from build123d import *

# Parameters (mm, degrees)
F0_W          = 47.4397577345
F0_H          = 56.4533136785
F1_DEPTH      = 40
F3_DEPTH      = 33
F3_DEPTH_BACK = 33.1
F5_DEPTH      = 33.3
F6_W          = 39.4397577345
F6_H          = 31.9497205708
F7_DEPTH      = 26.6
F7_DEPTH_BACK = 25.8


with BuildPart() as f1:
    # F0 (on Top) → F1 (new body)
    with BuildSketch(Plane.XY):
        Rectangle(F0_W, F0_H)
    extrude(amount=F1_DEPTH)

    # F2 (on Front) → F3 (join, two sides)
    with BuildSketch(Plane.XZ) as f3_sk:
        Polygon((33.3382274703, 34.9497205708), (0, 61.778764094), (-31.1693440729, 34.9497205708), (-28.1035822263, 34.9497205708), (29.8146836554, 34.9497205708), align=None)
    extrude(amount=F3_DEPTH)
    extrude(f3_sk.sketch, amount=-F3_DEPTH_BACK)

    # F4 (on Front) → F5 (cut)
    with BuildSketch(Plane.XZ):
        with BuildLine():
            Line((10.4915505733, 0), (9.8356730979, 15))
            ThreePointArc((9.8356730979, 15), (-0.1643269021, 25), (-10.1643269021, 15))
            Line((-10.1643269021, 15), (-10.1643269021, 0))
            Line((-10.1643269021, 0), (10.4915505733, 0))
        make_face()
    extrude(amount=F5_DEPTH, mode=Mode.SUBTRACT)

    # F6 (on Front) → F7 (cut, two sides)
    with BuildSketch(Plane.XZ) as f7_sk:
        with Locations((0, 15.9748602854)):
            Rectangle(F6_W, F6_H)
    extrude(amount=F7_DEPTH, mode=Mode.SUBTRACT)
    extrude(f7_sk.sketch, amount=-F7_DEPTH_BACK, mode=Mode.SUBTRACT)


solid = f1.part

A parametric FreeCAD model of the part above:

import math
import FreeCAD as App
import Part
import Sketcher

V = App.Vector


def add_polygon(sketch, points):
    """Adds a closed chain of lines whose ends are joined by coincident constraints."""
    first, n = sketch.GeometryCount, len(points)
    for a, b in zip(points, points[1:] + points[:1]):
        sketch.addGeometry(Part.LineSegment(App.Vector(*a, 0), App.Vector(*b, 0)), False)
    for i in range(n):
        sketch.addConstraint(Sketcher.Constraint("Coincident", first + i, 2, first + (i + 1) % n, 1))

doc = App.newDocument("Part")
body = doc.addObject("PartDesign::Body", "Body")

# Sketch on XY plane
sketch1 = doc.addObject("Sketcher::SketchObject", "Sketch")
body.addObject(sketch1)
sketch1.AttachmentSupport = (doc.XY_Plane, [""])
sketch1.MapMode = "FlatFace"
add_polygon(sketch1, [(-24, 28), (-24, -28), (24, -28), (24, 28)])  # lines 0-3
sketch1.addConstraint(Sketcher.Constraint("Vertical", 0))
sketch1.addConstraint(Sketcher.Constraint("Horizontal", 1))
sketch1.addConstraint(Sketcher.Constraint("Vertical", 2))
sketch1.addConstraint(Sketcher.Constraint("Horizontal", 3))
sketch1.addConstraint(Sketcher.Constraint("Symmetric", 0, 2, 2, 2, -1, 1))
sketch1.addConstraint(Sketcher.Constraint("DistanceX", 1, 1, 1, 2, 47.439758))
sketch1.addConstraint(Sketcher.Constraint("DistanceY", 0, 2, 0, 1, 56.453314))
pad1 = doc.addObject("PartDesign::Pad", "Pad")
body.addObject(pad1)
pad1.Profile = sketch1
pad1.Length = 40

# Sketch on XZ plane
sketch2 = doc.addObject("Sketcher::SketchObject", "Sketch001")
body.addObject(sketch2)
sketch2.AttachmentSupport = (doc.XZ_Plane, [""])
sketch2.MapMode = "FlatFace"
add_polygon(sketch2, [(33, 35), (0, 62), (-31, 35)])  # lines 0-2
sketch2.addConstraint(Sketcher.Constraint("Horizontal", 2))
sketch2.addConstraint(Sketcher.Constraint("PointOnObject", 0, 2, -2))
sketch2.addConstraint(Sketcher.Constraint("DistanceX", 2, 1, 2, 2, 64.507572))
sketch2.addConstraint(Sketcher.Constraint("Distance", 0, 42.792932))
sketch2.addConstraint(Sketcher.Constraint("Distance", 1, 41.125729))
sketch2.addConstraint(Sketcher.Constraint("DistanceY", -1, 1, 1, 2, 34.949721))
pad2 = doc.addObject("PartDesign::Pad", "Pad001")
body.addObject(pad2)
pad2.Profile = sketch2
pad2.Type = "TwoLengths"
pad2.Length = 33
pad2.Length2 = 33.1

# Sketch on XZ plane
sketch3 = doc.addObject("Sketcher::SketchObject", "Sketch002")
body.addObject(sketch3)
sketch3.AttachmentSupport = (doc.XZ_Plane, [""])
sketch3.MapMode = "FlatFace"
sketch3.addGeometry(Part.LineSegment(V(10, 0, 0), V(10, 15, 0)), False)
sketch3.addGeometry(Part.ArcOfCircle(Part.Circle(V(0, 15, 0), V(0, 0, 1), 10), math.radians(0), math.radians(180)), False)
sketch3.addGeometry(Part.LineSegment(V(-10, 15, 0), V(-10, 0, 0)), False)
sketch3.addGeometry(Part.LineSegment(V(-10, 0, 0), V(10, 0, 0)), False)
sketch3.addConstraint(Sketcher.Constraint("Coincident", 0, 2, 1, 1))
sketch3.addConstraint(Sketcher.Constraint("Tangent", 1, 2, 2, 1))
sketch3.addConstraint(Sketcher.Constraint("Coincident", 2, 2, 3, 1))
sketch3.addConstraint(Sketcher.Constraint("Coincident", 3, 2, 0, 1))
sketch3.addConstraint(Sketcher.Constraint("Vertical", 2))
sketch3.addConstraint(Sketcher.Constraint("Horizontal", 3))
sketch3.addConstraint(Sketcher.Constraint("PointOnObject", 2, 2, -1))
sketch3.addConstraint(Sketcher.Constraint("Horizontal", 1, 3, 0, 2))
sketch3.addConstraint(Sketcher.Constraint("Radius", 1, 10.0))
sketch3.addConstraint(Sketcher.Constraint("DistanceY", 2, 2, 2, 1, 15.0))
sketch3.addConstraint(Sketcher.Constraint("DistanceX", 3, 1, 3, 2, 20.655877))
sketch3.addConstraint(Sketcher.Constraint("DistanceX", -1, 1, 3, 2, 10.491551))
pocket1 = doc.addObject("PartDesign::Pocket", "Pocket")
body.addObject(pocket1)
pocket1.Profile = sketch3
pocket1.Length = 33.3
pocket1.Reversed = True

# Sketch on XZ plane
sketch4 = doc.addObject("Sketcher::SketchObject", "Sketch003")
body.addObject(sketch4)
sketch4.AttachmentSupport = (doc.XZ_Plane, [""])
sketch4.MapMode = "FlatFace"
add_polygon(sketch4, [(-20, 32), (-20, 0), (20, 0), (20, 32)])  # lines 0-3
sketch4.addConstraint(Sketcher.Constraint("Vertical", 0))
sketch4.addConstraint(Sketcher.Constraint("Horizontal", 1))
sketch4.addConstraint(Sketcher.Constraint("Vertical", 2))
sketch4.addConstraint(Sketcher.Constraint("Horizontal", 3))
sketch4.addConstraint(Sketcher.Constraint("Symmetric", 0, 2, 1, 2, -1, 1))
sketch4.addConstraint(Sketcher.Constraint("DistanceY", 0, 2, 0, 1, 31.949721))
sketch4.addConstraint(Sketcher.Constraint("DistanceX", 1, 1, 1, 2, 39.439758))
pocket2 = doc.addObject("PartDesign::Pocket", "Pocket001")
body.addObject(pocket2)
pocket2.Profile = sketch4
pocket2.Type = "TwoLengths"
pocket2.Length = 26.6
pocket2.Length2 = 25.8
pocket2.Reversed = True

doc.recompute()
